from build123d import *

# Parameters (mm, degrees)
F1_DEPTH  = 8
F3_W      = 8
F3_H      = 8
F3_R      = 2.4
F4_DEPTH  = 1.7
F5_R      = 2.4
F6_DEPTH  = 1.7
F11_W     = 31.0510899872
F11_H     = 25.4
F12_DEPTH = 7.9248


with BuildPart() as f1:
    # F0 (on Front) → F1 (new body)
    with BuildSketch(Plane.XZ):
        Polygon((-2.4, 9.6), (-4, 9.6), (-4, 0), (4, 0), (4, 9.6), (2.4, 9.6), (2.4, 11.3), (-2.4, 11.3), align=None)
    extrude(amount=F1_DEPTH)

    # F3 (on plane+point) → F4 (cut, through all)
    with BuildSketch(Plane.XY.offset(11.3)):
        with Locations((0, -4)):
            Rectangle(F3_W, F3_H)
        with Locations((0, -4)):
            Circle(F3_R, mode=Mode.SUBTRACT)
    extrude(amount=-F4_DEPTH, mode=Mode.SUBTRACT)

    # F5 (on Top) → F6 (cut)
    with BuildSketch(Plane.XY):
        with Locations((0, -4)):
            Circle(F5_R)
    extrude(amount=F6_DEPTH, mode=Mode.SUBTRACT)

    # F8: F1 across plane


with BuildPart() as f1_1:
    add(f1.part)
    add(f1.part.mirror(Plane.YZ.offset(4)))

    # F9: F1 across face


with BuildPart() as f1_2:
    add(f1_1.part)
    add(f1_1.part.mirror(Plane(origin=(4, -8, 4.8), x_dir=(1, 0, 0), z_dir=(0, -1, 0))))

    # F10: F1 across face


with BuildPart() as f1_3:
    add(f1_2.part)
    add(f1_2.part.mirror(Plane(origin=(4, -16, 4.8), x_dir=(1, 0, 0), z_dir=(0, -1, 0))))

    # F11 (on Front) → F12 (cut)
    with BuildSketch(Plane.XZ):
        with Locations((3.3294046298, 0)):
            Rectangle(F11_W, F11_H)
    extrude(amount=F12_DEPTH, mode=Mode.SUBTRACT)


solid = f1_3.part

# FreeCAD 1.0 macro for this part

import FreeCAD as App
import Part
import Sketcher

V = App.Vector
Q = App.Units.Quantity

doc = App.newDocument("Part")
body = doc.addObject("PartDesign::Body", "Body")

# Sketch on XZ plane
sketch1 = body.newObject("Sketcher::SketchObject", "Sketch")
sketch1.AttachmentSupport = (doc.getObject("XZ_Plane"), [""])
sketch1.MapMode = "FlatFace"
sketch1.addGeometry([
    Part.LineSegment(V(-2.4, 9.6, 0), V(-4, 9.6, 0)),  # 0
    Part.LineSegment(V(-4, 9.6, 0), V(-4, 0, 0)),  # 1
    Part.LineSegment(V(-4, 0, 0), V(4, 0, 0)),  # 2
    Part.LineSegment(V(4, 0, 0), V(4, 9.6, 0)),  # 3
    Part.LineSegment(V(4, 9.6, 0), V(2.4, 9.6, 0)),  # 4
    Part.LineSegment(V(2.4, 9.6, 0), V(2.4, 11.3, 0)),  # 5
    Part.LineSegment(V(2.4, 11.3, 0), V(-2.4, 11.3, 0)),  # 6
    Part.LineSegment(V(-2.4, 11.3, 0), V(-2.4, 9.6, 0)),  # 7
], False)
sketch1.addConstraint([
    Sketcher.Constraint("Coincident", 0, 2, 1, 1),
    Sketcher.Constraint("Coincident", 1, 2, 2, 1),
    Sketcher.Constraint("Coincident", 2, 2, 3, 1),
    Sketcher.Constraint("Coincident", 3, 2, 4, 1),
    Sketcher.Constraint("Coincident", 4, 2, 5, 1),
    Sketcher.Constraint("Coincident", 5, 2, 6, 1),
    Sketcher.Constraint("Coincident", 6, 2, 7, 1),
    Sketcher.Constraint("Coincident", 7, 2, 0, 1),
    Sketcher.Constraint("Horizontal", 0),
    Sketcher.Constraint("Vertical", 1),
    Sketcher.Constraint("Horizontal", 2),
    Sketcher.Constraint("Vertical", 3),
    Sketcher.Constraint("Horizontal", 4),
    Sketcher.Constraint("Vertical", 5),
    Sketcher.Constraint("Horizontal", 6),
    Sketcher.Constraint("Vertical", 7),
    Sketcher.Constraint("Symmetric", 1, 2, 2, 2, -1, 1),
    Sketcher.Constraint("Symmetric", 4, 2, 7, 2, -2),
    Sketcher.Constraint("DistanceX", 2, 1, 2, 2, Q("8 mm")),
    Sketcher.Constraint("DistanceX", 0, 2, 0, 1, Q("1.6 mm")),
    Sketcher.Constraint("DistanceY", 1, 2, 1, 1, Q("9.6 mm")),
    Sketcher.Constraint("DistanceY", 5, 1, 5, 2, Q("1.7 mm")),
])
pad1 = body.newObject("PartDesign::Pad", "Pad")
pad1.Profile = sketch1
pad1.Length = 8

# Sketch on XY plane
sketch2 = body.newObject("Sketcher::SketchObject", "Sketch001")
sketch2.AttachmentSupport = (doc.getObject("XY_Plane"), [""])
sketch2.MapMode = "FlatFace"
sketch2.AttachmentOffset = App.Placement(V(0, 0, 11.3), App.Rotation())
sketch2.addGeometry([
    Part.LineSegment(V(-4, 0, 0), V(-4, -8, 0)),  # 0
    Part.LineSegment(V(-4, -8, 0), V(4, -8, 0)),  # 1
    Part.LineSegment(V(4, -8, 0), V(4, 0, 0)),  # 2
    Part.LineSegment(V(4, 0, 0), V(-4, 0, 0)),  # 3
    Part.Circle(V(0, -4, 0), V(0, 0, 1), 2.4),  # 4
], False)
sketch2.addConstraint([
    Sketcher.Constraint("Coincident", 0, 2, 1, 1),
    Sketcher.Constraint("Coincident", 1, 2, 2, 1),
    Sketcher.Constraint("Coincident", 2, 2, 3, 1),
    Sketcher.Constraint("Coincident", 3, 2, 0, 1),
    Sketcher.Constraint("Vertical", 0),
    Sketcher.Constraint("Horizontal", 1),
    Sketcher.Constraint("Vertical", 2),
    Sketcher.Constraint("Horizontal", 3),
    Sketcher.Constraint("Symmetric", 2, 2, 3, 2, -1, 1),
    Sketcher.Constraint("PointOnObject", 4, 3, -2),
    Sketcher.Constraint("Equal", 3, 0),
    Sketcher.Constraint("Diameter", 4, Q("4.8 mm")),
    Sketcher.Constraint("DistanceX", 1, 1, 1, 2, Q("8 mm")),
    Sketcher.Constraint("DistanceY", 4, 3, -1, 1, Q("4 mm")),
])
pocket1 = body.newObject("PartDesign::Pocket", "Pocket")
pocket1.Profile = sketch2
pocket1.Length = 1.7

# Sketch on XY plane
sketch3 = body.newObject("Sketcher::SketchObject", "Sketch002")
sketch3.AttachmentSupport = (doc.getObject("XY_Plane"), [""])
sketch3.MapMode = "FlatFace"
sketch3.addGeometry(Part.Circle(V(0, -4, 0), V(0, 0, 1), 2.4), False)
sketch3.addConstraint([
    Sketcher.Constraint("PointOnObject", 0, 3, -2),
    Sketcher.Constraint("Diameter", 0, Q("4.8 mm")),
    Sketcher.Constraint("DistanceY", 0, 3, -1, 1, Q("4 mm")),
])
pocket2 = body.newObject("PartDesign::Pocket", "Pocket001")
pocket2.Profile = sketch3
pocket2.Length = 1.7
pocket2.Reversed = True
body2 = doc.addObject("PartDesign::Body", "Body001")
doc.recompute()

body2.BaseFeature = body
doc.recompute()

mirroring = doc.addObject("Part::Mirroring", "Mirroring")
mirroring.Source = body
mirroring.Base = V(4, 0, 0)
mirroring.Normal = V(1, 0, 0)
body3 = doc.addObject("PartDesign::Body", "Body002")
body3.BaseFeature = mirroring
boolean = body2.newObject("PartDesign::Boolean", "Boolean")
boolean.Type = "Fuse"
boolean.addObjects([body3])
doc.recompute()
body4 = doc.addObject("PartDesign::Body", "Body003")
doc.recompute()

body4.BaseFeature = body2
doc.recompute()

mirroring2 = doc.addObject("Part::Mirroring", "Mirroring001")
mirroring2.Source = body2
mirroring2.Base = V(4, -8, 4.8)
mirroring2.Normal = V(0, -1, 0)
body5 = doc.addObject("PartDesign::Body", "Body004")
body5.BaseFeature = mirroring2
boolean2 = body4.newObject("PartDesign::Boolean", "Boolean001")
boolean2.Type = "Fuse"
boolean2.addObjects([body5])
doc.recompute()
body6 = doc.addObject("PartDesign::Body", "Body005")
doc.recompute()

body6.BaseFeature = body4
doc.recompute()

mirroring3 = doc.addObject("Part::Mirroring", "Mirroring002")
mirroring3.Source = body4
mirroring3.Base = V(4, -16, 4.8)
mirroring3.Normal = V(0, -1, 0)
body7 = doc.addObject("PartDesign::Body", "Body006")
body7.BaseFeature = mirroring3
boolean3 = body6.newObject("PartDesign::Boolean", "Boolean002")
boolean3.Type = "Fuse"
boolean3.addObjects([body7])
doc.recompute()

# Sketch on XZ plane
sketch4 = body6.newObject("Sketcher::SketchObject", "Sketch003")
sketch4.AttachmentSupport = (doc.getObject("XZ_Plane005"), [""])
sketch4.MapMode = "FlatFace"
sketch4.addGeometry([
    Part.LineSegment(V(-12, 13, 0), V(-12, -13, 0)),
    Part.LineSegment(V(-12, -13, 0), V(19, -13, 0)),
    Part.LineSegment(V(19, -13, 0), V(19, 13, 0)),
    Part.LineSegment(V(19, 13, 0), V(-12, 13, 0)),
], False)
sketch4.addConstraint([
    Sketcher.Constraint("Coincident", 0, 2, 1, 1),
    Sketcher.Constraint("Coincident", 1, 2, 2, 1),
    Sketcher.Constraint("Coincident", 2, 2, 3, 1),
    Sketcher.Constraint("Coincident", 3, 2, 0, 1),
    Sketcher.Constraint("Vertical", 0),
    Sketcher.Constraint("Horizontal", 1),
    Sketcher.Constraint("Vertical", 2),
    Sketcher.Constraint("Horizontal", 3),
    Sketcher.Constraint("DistanceY", 0, 2, 0, 1, Q("25.4 mm")),
    Sketcher.Constraint("DistanceY", 0, 2, -1, 1, Q("12.7 mm")),
    Sketcher.Constraint("DistanceX", 1, 1, 1, 2, Q("31.05109 mm")),
    Sketcher.Constraint("DistanceX", 0, 2, -1, 1, Q("12.19614 mm")),
])
pocket3 = body6.newObject("PartDesign::Pocket", "Pocket002")
pocket3.Profile = sketch4
pocket3.Length = 7.9248
pocket3.Reversed = True
mirroring.Visibility = False
mirroring2.Visibility = False
mirroring3.Visibility = False

doc.recompute()
